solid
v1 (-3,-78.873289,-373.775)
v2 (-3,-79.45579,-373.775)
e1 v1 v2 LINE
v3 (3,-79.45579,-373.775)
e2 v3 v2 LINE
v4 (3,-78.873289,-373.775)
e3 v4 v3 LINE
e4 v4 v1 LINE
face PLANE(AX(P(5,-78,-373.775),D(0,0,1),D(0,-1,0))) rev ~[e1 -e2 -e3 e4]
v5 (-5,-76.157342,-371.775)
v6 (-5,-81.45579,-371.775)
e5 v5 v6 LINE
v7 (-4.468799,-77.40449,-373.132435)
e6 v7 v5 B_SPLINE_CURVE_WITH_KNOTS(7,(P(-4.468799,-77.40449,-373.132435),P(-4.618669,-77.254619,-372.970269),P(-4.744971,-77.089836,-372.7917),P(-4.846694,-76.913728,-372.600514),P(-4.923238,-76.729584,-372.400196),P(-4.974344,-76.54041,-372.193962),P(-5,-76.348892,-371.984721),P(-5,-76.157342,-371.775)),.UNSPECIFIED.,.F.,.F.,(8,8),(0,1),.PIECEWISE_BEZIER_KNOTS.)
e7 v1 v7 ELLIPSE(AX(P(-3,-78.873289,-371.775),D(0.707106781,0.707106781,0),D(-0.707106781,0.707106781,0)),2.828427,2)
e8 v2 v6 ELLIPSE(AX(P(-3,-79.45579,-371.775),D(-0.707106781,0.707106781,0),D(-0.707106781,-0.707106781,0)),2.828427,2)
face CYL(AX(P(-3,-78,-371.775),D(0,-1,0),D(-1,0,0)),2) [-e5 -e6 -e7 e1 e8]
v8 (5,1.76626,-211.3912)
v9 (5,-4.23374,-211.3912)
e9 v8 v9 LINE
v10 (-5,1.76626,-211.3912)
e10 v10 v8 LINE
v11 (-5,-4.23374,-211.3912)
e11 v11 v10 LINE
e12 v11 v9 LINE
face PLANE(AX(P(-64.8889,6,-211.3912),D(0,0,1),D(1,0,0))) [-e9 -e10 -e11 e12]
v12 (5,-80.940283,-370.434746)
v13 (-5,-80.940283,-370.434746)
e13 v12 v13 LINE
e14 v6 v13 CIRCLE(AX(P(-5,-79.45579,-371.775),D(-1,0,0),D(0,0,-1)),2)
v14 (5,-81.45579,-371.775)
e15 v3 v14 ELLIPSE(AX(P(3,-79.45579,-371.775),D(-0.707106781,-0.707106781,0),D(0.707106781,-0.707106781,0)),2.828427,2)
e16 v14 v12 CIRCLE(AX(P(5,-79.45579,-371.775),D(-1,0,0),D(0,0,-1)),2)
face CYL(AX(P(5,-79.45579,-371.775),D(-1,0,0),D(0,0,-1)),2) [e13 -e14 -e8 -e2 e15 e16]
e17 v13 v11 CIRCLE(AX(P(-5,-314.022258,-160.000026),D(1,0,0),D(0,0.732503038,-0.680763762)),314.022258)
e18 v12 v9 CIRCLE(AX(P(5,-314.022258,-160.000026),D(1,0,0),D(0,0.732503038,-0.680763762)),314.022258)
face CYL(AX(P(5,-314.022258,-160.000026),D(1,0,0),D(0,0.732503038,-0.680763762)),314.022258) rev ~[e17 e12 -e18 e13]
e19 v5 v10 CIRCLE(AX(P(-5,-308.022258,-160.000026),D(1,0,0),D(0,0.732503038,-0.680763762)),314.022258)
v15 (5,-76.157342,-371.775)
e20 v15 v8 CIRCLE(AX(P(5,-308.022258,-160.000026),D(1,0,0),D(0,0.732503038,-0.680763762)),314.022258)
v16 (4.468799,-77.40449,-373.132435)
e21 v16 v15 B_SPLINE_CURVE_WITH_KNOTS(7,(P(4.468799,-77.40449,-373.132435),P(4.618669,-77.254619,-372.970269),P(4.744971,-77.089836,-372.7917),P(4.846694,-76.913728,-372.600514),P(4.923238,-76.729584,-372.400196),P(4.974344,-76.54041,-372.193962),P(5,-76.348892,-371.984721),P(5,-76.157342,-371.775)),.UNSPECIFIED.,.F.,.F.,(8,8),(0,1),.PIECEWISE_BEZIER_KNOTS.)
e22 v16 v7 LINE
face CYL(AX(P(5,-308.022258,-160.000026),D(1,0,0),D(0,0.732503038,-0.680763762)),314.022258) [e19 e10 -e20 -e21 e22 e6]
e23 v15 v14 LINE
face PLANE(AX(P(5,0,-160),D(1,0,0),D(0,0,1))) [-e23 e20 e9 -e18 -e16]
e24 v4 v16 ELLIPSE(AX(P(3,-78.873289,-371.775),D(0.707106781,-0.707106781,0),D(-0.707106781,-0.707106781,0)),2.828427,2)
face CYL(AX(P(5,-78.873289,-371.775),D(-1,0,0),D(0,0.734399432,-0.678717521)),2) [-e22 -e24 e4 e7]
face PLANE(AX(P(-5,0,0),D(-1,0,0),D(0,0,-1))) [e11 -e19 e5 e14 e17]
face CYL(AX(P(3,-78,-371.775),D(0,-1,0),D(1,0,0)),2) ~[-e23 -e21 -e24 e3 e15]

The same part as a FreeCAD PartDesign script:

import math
import FreeCAD as App
import Part
import Sketcher
from FreeCAD import Vector


def edges_at(feature, points):
    """Names of the edges that pass closest to the given points."""
    edges = feature.Shape.Edges
    near = lambda p: min(range(len(edges)), key=lambda i: edges[i].distToShape(Part.Vertex(*p))[0])
    return sorted({f"Edge{near(p) + 1}" for p in points})

doc = App.newDocument("Part")
params = doc.addObject("Spreadsheet::Sheet", "Params")
for row, (alias, value) in enumerate([
    ("sketch1_radius", "5 mm"),
    ("sketch1_diameter", "3.3 mm"),
    ("sketch1_height", "160 mm"),
    ("pad1_length", "6 mm"),
    ("sketch2_width", "6 mm"),
    ("pad2_length", "10 mm"),
    ("fillet_radius", "2 mm"),
    ("pocket1_length", "100 mm"),
], start=1):
    params.set(f"A{row}", alias)
    params.set(f"B{row}", "=" + value)
    params.setAlias(f"B{row}", alias)

body = doc.addObject("PartDesign::Body", "Body")

# Sketch on XZ plane
sketch1 = body.newObject("Sketcher::SketchObject", "Sketch")
sketch1.AttachmentSupport = (doc.getObject("XZ_Plane"), [""])
sketch1.MapMode = "FlatFace"
sketch1.addGeometry([
    Part.LineSegment(Vector(-5, -160, 0), Vector(-5, 0, 0)),  # 0
    Part.ArcOfCircle(Part.Circle(Vector(0, 0, 0), Vector(0, 0, 1), 5), math.radians(0), math.radians(180)),  # 1
    Part.LineSegment(Vector(5, 0, 0), Vector(5, -160, 0)),  # 2
    Part.ArcOfCircle(Part.Circle(Vector(0, -160, 0), Vector(0, 0, 1), 5), math.radians(180), math.radians(360)),  # 3
    Part.ArcOfCircle(Part.Circle(Vector(0, -30, 0), Vector(0, 0, 1), 1.6), math.radians(0), math.radians(180)),  # 4
    Part.LineSegment(Vector(-1.6, -30, 0), Vector(-1.6, -120, 0)),  # 5
    Part.ArcOfCircle(Part.Circle(Vector(0, -120, 0), Vector(0, 0, 1), 1.6), math.radians(180), math.radians(360)),  # 6
    Part.LineSegment(Vector(1.6, -120, 0), Vector(1.6, -30, 0)),  # 7
    Part.Circle(Vector(0, 0, 0), Vector(0, 0, 1), 1.6),  # 8
], False)
sketch1.addConstraint([
    Sketcher.Constraint("Tangent", 0, 2, 1, 2),
    Sketcher.Constraint("Tangent", 1, 1, 2, 1),
    Sketcher.Constraint("Tangent", 2, 2, 3, 2),
    Sketcher.Constraint("Tangent", 3, 1, 0, 1),
    Sketcher.Constraint("Tangent", 4, 2, 5, 1),
    Sketcher.Constraint("Tangent", 5, 2, 6, 1),
    Sketcher.Constraint("Tangent", 6, 2, 7, 1),
    Sketcher.Constraint("Tangent", 7, 2, 4, 1),
    Sketcher.Constraint("Vertical", 0),
    Sketcher.Constraint("Vertical", 2),
    Sketcher.Constraint("Vertical", 5),
    Sketcher.Constraint("Vertical", 7),
    Sketcher.Constraint("Coincident", 1, 3, -1, 1),
    Sketcher.Constraint("Coincident", 8, 3, -1, 1),
    Sketcher.Constraint("Equal", 6, 8),
    Sketcher.Constraint("PointOnObject", 4, 3, -2),
    Sketcher.Constraint("Radius", 1, 5.0),
    Sketcher.Constraint("Diameter", 8, 3.3),
    Sketcher.Constraint("DistanceY", 0, 1, 0, 2, 160.0),
    Sketcher.Constraint("DistanceY", 4, 3, -1, 1, 30.0),
    Sketcher.Constraint("DistanceY", 6, 3, -1, 1, 120.0),
])
sketch1.setExpression("Constraints[16]", "Params.sketch1_radius")
sketch1.setExpression("Constraints[17]", "Params.sketch1_diameter")
sketch1.setExpression("Constraints[18]", "Params.sketch1_height")
pad1 = body.newObject("PartDesign::Pad", "Pad")
pad1.Profile = sketch1
pad1.setExpression("Length", "Params.pad1_length")
pad1.Reversed = True

# Sketch on YZ plane
sketch2 = body.newObject("Sketcher::SketchObject", "Sketch001")
sketch2.AttachmentSupport = (doc.getObject("YZ_Plane"), [""])
sketch2.MapMode = "FlatFace"
sketch2.AttachmentOffset = App.Placement(Vector(0, 0, 5), App.Rotation())
sketch2.addGeometry([
    Part.LineSegment(Vector(6, -160, 0), Vector(0, -160, 0)),
    Part.ArcOfCircle(Part.Circle(Vector(-314, -160, 0), Vector(0, 0, 1), 314), math.radians(-43), math.radians(0)),
    Part.LineSegment(Vector(-84, -374, 0), Vector(-78, -374, 0)),
    Part.ArcOfCircle(Part.Circle(Vector(-308, -160, 0), Vector(0, 0, 1), 314), math.radians(-43), math.radians(0)),
], False)
sketch2.addConstraint([
    Sketcher.Constraint("Coincident", 0, 2, 1, 2),
    Sketcher.Constraint("Coincident", 1, 1, 2, 1),
    Sketcher.Constraint("Coincident", 2, 2, 3, 1),
    Sketcher.Constraint("Coincident", 3, 2, 0, 1),
    Sketcher.Constraint("Horizontal", 0),
    Sketcher.Constraint("Horizontal", 2),
    Sketcher.Constraint("Equal", 1, 3),
    Sketcher.Constraint("PointOnObject", 0, 2, -2),
    Sketcher.Constraint("Horizontal", 1, 3, 3, 3),
    Sketcher.Constraint("Horizontal", 3, 3, 0, 2),
    Sketcher.Constraint("DistanceX", 0, 2, 0, 1, 6.0),
    Sketcher.Constraint("DistanceX", 1, 1, 3, 2, 90.0),
    Sketcher.Constraint("DistanceY", 1, 3, -1, 1, 160.0),
    Sketcher.Constraint("DistanceY", 2, 2, -1, 1, 373.775),
])
sketch2.setExpression("Constraints[10]", "Params.sketch2_width")
pad2 = body.newObject("PartDesign::Pad", "Pad001")
pad2.Profile = sketch2
pad2.setExpression("Length", "Params.pad2_length")
pad2.Reversed = True
doc.recompute()

fillet = body.newObject("PartDesign::Fillet", "Fillet")
fillet.Base = (pad2, edges_at(pad2, [
    (0, -78, -373.775),
    (5, -81, -373.775),
    (-5, -81, -373.775),
    (0, -84, -373.775),
]))
fillet.setExpression("Radius", "Params.fillet_radius")

# Sketch on XZ plane
sketch3 = body.newObject("Sketcher::SketchObject", "Sketch002")
sketch3.AttachmentSupport = (doc.getObject("XZ_Plane"), [""])
sketch3.MapMode = "FlatFace"
sketch3.AttachmentOffset = App.Placement(Vector(0, 0, -6), App.Rotation())
sketch3.addGeometry([
    Part.LineSegment(Vector(-65, 17, 0), Vector(37, 17, 0)),
    Part.LineSegment(Vector(37, 17, 0), Vector(37, -211, 0)),
    Part.LineSegment(Vector(37, -211, 0), Vector(-65, -211, 0)),
    Part.LineSegment(Vector(-65, -211, 0), Vector(-65, 17, 0)),
], False)
sketch3.addConstraint([
    Sketcher.Constraint("Coincident", 0, 2, 1, 1),
    Sketcher.Constraint("Coincident", 1, 2, 2, 1),
    Sketcher.Constraint("Coincident", 2, 2, 3, 1),
    Sketcher.Constraint("Coincident", 3, 2, 0, 1),
    Sketcher.Constraint("Horizontal", 0),
    Sketcher.Constraint("Vertical", 1),
    Sketcher.Constraint("Horizontal", 2),
    Sketcher.Constraint("Vertical", 3),
    Sketcher.Constraint("DistanceX", 0, 1, 0, 2, 101.5663),
    Sketcher.Constraint("DistanceY", 1, 2, 1, 1, 228.3233),
    Sketcher.Constraint("DistanceY", -1, 1, 0, 2, 16.932),
    Sketcher.Constraint("DistanceX", 2, 2, -1, 1, 64.889),
])
pocket1 = body.newObject("PartDesign::Pocket", "Pocket")
pocket1.Profile = sketch3
pocket1.setExpression("Length", "Params.pocket1_length")
pocket1.Reversed = True

doc.recompute()
